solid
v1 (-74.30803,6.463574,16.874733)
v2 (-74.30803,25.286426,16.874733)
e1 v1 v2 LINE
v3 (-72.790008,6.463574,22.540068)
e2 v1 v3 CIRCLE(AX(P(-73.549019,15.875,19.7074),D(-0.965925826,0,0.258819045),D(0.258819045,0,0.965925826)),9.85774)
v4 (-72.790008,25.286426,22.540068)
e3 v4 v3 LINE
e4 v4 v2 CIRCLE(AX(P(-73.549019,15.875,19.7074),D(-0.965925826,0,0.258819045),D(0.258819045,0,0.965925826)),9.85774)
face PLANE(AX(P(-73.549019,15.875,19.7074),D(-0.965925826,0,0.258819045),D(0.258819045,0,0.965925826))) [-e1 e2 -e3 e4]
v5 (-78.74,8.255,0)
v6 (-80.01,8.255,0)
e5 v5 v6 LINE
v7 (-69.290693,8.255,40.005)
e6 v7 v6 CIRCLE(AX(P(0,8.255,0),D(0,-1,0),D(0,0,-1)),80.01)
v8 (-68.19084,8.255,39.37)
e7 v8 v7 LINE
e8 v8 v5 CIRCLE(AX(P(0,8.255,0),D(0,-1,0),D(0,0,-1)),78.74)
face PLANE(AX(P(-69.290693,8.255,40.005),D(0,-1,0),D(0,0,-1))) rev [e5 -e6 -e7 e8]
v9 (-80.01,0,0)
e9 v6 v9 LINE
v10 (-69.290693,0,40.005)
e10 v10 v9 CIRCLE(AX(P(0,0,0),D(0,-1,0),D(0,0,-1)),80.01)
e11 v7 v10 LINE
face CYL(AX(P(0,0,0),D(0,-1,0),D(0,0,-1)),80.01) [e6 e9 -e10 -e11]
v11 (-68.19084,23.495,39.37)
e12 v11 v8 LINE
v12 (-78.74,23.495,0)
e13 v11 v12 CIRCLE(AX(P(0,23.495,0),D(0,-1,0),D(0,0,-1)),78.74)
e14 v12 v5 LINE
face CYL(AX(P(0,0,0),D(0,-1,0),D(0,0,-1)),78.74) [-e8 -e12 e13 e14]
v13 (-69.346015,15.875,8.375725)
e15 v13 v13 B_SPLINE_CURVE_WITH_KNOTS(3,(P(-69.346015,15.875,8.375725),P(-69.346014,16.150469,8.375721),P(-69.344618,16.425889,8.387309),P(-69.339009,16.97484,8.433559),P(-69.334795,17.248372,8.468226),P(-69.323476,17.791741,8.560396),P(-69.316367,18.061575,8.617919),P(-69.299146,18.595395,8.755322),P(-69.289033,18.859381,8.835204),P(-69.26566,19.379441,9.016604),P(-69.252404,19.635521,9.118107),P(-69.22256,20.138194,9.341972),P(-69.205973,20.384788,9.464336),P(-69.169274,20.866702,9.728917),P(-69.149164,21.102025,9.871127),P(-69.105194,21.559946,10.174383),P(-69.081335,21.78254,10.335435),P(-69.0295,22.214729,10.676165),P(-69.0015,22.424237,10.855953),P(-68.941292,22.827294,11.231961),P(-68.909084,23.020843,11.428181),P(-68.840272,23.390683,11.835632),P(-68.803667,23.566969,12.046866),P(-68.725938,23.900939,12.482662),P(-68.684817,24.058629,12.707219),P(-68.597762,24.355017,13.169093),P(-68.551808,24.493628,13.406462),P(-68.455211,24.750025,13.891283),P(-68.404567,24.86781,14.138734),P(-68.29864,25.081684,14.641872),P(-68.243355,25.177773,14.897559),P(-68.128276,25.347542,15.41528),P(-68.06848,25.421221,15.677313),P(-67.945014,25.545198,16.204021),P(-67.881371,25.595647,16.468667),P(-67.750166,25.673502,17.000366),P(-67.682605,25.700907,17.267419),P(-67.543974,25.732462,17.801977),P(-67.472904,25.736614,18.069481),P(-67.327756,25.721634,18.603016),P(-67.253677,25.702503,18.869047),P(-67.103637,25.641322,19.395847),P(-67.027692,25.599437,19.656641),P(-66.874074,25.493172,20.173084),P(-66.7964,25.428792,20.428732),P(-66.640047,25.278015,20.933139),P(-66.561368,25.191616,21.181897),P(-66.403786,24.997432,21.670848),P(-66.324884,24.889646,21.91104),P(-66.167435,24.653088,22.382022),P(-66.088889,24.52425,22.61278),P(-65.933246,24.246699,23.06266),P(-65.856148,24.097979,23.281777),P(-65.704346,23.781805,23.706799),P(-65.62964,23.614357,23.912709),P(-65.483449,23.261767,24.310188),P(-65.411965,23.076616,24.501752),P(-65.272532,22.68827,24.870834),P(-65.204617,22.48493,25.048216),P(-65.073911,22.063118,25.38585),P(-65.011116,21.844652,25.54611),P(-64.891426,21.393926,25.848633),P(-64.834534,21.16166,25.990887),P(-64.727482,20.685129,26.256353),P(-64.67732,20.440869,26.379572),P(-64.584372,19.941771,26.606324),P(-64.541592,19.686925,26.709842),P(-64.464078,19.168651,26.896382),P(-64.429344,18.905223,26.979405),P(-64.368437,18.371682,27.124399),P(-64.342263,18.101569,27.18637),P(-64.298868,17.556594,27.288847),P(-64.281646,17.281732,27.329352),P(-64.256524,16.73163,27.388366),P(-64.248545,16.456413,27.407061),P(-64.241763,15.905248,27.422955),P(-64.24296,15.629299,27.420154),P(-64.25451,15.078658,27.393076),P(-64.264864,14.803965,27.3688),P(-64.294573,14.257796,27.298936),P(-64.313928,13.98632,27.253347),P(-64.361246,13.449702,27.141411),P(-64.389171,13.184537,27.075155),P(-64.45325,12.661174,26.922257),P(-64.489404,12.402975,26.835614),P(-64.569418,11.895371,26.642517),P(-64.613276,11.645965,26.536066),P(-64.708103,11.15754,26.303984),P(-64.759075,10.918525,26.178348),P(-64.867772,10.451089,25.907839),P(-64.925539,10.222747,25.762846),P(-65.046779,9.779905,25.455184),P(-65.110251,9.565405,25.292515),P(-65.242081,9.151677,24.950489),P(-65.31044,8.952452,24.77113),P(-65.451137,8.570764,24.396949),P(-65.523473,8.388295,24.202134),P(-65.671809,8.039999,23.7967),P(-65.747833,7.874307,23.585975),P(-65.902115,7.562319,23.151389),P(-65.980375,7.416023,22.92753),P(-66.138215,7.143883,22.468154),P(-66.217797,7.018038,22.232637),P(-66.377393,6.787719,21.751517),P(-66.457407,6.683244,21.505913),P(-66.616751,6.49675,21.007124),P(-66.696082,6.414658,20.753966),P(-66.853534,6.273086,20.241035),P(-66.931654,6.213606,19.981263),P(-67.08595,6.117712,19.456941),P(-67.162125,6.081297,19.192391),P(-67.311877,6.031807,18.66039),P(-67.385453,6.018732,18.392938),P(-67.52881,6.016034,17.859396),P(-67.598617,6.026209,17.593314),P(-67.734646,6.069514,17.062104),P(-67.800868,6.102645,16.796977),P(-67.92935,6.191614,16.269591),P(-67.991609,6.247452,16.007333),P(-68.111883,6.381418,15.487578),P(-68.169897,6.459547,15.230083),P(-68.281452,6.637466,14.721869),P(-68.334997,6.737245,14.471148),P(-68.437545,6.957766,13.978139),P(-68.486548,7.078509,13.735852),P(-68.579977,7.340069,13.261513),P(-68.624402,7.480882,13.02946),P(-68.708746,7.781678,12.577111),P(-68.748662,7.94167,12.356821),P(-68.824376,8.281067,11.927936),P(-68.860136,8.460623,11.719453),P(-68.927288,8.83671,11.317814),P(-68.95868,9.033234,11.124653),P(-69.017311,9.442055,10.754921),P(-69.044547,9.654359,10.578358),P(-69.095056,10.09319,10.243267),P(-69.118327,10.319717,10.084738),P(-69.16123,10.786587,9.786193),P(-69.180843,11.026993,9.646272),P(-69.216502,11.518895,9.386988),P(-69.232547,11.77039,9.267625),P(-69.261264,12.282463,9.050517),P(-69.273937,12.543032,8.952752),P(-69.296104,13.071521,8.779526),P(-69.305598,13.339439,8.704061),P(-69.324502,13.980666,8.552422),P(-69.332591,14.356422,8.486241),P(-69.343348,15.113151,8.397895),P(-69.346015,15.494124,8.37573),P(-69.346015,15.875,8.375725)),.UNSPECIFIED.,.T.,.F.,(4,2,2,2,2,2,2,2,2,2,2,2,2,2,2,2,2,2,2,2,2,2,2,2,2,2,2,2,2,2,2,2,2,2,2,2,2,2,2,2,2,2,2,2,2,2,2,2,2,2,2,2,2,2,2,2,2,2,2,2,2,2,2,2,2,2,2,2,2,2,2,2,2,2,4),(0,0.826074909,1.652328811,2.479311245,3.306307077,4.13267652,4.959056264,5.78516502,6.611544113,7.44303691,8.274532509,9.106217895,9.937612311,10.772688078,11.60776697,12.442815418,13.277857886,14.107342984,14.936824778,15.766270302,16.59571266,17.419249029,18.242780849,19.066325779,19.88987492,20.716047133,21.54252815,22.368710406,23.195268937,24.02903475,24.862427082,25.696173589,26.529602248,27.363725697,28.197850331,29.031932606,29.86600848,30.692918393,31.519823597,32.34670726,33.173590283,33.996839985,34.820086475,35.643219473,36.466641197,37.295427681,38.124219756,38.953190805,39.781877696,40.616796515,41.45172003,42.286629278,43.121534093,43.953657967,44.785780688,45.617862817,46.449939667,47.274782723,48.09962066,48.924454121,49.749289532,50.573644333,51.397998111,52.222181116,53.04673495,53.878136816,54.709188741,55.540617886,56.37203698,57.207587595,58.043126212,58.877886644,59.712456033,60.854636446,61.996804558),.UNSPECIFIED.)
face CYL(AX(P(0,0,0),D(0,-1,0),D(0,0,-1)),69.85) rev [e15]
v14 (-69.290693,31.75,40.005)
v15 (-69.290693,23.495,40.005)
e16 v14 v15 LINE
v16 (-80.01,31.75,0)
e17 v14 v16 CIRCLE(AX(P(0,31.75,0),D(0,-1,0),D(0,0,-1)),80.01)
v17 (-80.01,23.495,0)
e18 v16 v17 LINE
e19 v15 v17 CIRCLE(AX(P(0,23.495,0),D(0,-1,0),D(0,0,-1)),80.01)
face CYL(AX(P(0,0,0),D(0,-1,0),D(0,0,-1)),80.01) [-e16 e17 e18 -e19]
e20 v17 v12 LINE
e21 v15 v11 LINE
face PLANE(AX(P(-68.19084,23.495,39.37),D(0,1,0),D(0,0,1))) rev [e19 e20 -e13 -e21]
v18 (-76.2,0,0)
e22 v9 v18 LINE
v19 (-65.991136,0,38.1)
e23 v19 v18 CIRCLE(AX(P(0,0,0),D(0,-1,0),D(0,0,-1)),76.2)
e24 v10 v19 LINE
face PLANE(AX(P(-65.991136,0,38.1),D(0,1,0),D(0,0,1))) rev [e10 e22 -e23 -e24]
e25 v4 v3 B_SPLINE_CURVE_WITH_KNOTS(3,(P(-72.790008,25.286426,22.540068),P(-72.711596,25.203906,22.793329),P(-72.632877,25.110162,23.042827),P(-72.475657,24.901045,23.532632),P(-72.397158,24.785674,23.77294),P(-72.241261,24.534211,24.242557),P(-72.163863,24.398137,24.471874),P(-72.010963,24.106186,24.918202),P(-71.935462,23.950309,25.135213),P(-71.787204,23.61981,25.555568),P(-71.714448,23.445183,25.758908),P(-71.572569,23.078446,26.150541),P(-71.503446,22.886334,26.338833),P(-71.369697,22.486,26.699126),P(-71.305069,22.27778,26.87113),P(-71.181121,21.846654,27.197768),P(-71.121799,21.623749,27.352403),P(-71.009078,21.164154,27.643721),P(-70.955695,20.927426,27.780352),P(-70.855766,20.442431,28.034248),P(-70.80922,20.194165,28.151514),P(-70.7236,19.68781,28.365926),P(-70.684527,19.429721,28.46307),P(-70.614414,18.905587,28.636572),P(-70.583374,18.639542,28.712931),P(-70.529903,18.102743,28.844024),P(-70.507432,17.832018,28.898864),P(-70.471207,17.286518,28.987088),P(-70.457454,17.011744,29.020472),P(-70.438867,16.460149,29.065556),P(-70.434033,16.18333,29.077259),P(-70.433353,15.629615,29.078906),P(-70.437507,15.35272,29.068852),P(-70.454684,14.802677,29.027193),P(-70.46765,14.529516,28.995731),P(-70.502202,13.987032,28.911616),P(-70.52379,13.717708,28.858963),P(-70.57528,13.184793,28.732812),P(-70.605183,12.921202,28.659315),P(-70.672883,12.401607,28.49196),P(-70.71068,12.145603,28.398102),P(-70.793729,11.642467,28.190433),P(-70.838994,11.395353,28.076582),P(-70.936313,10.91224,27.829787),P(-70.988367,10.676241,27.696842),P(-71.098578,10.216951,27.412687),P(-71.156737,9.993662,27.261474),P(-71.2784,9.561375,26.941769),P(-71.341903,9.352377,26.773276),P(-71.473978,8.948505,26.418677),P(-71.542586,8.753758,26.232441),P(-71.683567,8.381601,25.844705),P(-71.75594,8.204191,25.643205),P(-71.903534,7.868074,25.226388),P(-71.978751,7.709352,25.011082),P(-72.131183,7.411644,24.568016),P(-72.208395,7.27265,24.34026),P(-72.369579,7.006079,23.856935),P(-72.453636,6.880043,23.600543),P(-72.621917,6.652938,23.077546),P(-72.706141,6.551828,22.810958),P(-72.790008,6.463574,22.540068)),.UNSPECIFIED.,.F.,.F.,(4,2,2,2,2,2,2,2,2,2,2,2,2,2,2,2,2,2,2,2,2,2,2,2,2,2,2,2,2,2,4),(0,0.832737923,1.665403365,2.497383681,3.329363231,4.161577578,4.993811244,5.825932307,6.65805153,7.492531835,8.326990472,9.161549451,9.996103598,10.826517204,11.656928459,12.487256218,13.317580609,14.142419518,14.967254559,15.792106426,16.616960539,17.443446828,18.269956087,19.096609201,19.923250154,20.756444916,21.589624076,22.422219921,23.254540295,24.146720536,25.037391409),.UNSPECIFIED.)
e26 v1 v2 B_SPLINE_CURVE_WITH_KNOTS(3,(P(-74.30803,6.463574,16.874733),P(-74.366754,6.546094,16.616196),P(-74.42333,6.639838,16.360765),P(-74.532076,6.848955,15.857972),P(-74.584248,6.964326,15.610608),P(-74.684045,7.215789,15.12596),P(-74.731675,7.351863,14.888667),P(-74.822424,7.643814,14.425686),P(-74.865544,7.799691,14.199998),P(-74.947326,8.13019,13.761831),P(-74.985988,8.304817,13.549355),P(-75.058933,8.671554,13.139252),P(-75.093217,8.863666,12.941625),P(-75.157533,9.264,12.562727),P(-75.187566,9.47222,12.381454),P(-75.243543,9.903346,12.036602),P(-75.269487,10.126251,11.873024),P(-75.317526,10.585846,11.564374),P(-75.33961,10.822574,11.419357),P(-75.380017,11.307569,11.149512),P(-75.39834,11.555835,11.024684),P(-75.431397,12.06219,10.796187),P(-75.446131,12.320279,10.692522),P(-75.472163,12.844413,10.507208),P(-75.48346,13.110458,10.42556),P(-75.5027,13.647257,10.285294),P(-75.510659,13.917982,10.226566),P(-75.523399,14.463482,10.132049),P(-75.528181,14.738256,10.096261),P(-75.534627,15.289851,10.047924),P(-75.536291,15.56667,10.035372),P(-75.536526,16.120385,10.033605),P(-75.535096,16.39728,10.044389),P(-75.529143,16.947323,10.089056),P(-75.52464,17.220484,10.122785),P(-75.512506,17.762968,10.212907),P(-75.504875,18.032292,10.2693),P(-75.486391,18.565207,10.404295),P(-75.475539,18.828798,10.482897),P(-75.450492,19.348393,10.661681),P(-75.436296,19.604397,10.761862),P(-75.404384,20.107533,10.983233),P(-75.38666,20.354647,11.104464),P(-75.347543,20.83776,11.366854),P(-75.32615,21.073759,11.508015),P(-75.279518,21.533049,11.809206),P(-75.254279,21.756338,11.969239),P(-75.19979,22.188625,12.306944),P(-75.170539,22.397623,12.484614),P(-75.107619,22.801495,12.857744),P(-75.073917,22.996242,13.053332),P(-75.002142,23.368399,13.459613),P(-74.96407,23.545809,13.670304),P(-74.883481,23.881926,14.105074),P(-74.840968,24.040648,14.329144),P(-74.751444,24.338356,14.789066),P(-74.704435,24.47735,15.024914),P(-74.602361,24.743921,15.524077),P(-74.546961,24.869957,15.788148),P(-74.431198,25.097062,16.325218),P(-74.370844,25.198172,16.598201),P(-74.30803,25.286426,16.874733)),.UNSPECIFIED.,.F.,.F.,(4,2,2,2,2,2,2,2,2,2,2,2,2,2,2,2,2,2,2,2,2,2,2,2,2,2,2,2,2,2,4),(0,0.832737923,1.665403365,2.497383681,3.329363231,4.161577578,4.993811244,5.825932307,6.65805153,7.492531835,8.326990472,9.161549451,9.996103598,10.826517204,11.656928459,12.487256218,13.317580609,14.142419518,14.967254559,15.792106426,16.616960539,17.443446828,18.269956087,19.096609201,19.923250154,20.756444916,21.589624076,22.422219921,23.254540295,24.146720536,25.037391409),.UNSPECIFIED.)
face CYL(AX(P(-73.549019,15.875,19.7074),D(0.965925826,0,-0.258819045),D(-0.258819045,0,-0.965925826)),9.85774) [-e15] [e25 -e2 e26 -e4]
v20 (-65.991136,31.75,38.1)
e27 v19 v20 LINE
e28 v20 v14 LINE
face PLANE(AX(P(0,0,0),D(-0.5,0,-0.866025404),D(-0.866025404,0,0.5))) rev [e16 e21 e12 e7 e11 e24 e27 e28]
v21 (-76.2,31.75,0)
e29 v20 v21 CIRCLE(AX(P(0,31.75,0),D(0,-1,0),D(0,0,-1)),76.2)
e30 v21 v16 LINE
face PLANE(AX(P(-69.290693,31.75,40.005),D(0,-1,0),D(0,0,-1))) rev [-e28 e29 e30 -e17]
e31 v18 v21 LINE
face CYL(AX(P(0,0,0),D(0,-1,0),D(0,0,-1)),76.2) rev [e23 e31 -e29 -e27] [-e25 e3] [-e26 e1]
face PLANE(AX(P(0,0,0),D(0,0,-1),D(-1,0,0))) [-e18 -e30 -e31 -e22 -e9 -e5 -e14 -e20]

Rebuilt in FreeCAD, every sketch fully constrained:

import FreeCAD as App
import Part
import Sketcher
from FreeCAD import Vector
Q = App.Units.Quantity

doc = App.newDocument("Part")
body = doc.addObject("PartDesign::Body", "Body")

# Sketch on XY plane
sketch1 = doc.addObject("Sketcher::SketchObject", "Sketch")
body.addObject(sketch1)
sketch1.AttachmentSupport = (doc.XY_Plane, [""])
sketch1.MapMode = "FlatFace"
sketch1.addGeometry(Part.LineSegment(Vector(-80, 8.3, 0), Vector(-80, 0, 0)), False)
sketch1.addGeometry(Part.LineSegment(Vector(-80, 0, 0), Vector(-76.2, 0, 0)), False)
sketch1.addGeometry(Part.LineSegment(Vector(-76.2, 0, 0), Vector(-76.2, 31.8, 0)), False)
sketch1.addGeometry(Part.LineSegment(Vector(-76.2, 31.8, 0), Vector(-80, 31.8, 0)), False)
sketch1.addGeometry(Part.LineSegment(Vector(-80, 31.8, 0), Vector(-80, 23.5, 0)), False)
sketch1.addGeometry(Part.LineSegment(Vector(-80, 23.5, 0), Vector(-78.7, 23.5, 0)), False)
sketch1.addGeometry(Part.LineSegment(Vector(-78.7, 23.5, 0), Vector(-78.7, 8.3, 0)), False)
sketch1.addGeometry(Part.LineSegment(Vector(-78.7, 8.3, 0), Vector(-80, 8.3, 0)), False)
sketch1.addConstraint(Sketcher.Constraint("Coincident", 0, 2, 1, 1))
sketch1.addConstraint(Sketcher.Constraint("Coincident", 1, 2, 2, 1))
sketch1.addConstraint(Sketcher.Constraint("Coincident", 2, 2, 3, 1))
sketch1.addConstraint(Sketcher.Constraint("Coincident", 3, 2, 4, 1))
sketch1.addConstraint(Sketcher.Constraint("Coincident", 4, 2, 5, 1))
sketch1.addConstraint(Sketcher.Constraint("Coincident", 5, 2, 6, 1))
sketch1.addConstraint(Sketcher.Constraint("Coincident", 6, 2, 7, 1))
sketch1.addConstraint(Sketcher.Constraint("Coincident", 7, 2, 0, 1))
sketch1.addConstraint(Sketcher.Constraint("Vertical", 0))
sketch1.addConstraint(Sketcher.Constraint("Horizontal", 1))
sketch1.addConstraint(Sketcher.Constraint("Vertical", 2))
sketch1.addConstraint(Sketcher.Constraint("Horizontal", 3))
sketch1.addConstraint(Sketcher.Constraint("Vertical", 4))
sketch1.addConstraint(Sketcher.Constraint("Horizontal", 5))
sketch1.addConstraint(Sketcher.Constraint("Vertical", 6))
sketch1.addConstraint(Sketcher.Constraint("Horizontal", 7))
sketch1.addConstraint(Sketcher.Constraint("PointOnObject", 0, 2, -1))
sketch1.addConstraint(Sketcher.Constraint("Vertical", 0, 2, 3, 2))
sketch1.addConstraint(Sketcher.Constraint("Equal", 0, 4))
sketch1.addConstraint(Sketcher.Constraint("DistanceY", 6, 2, 6, 1, Q("0.6 in")))
sketch1.addConstraint(Sketcher.Constraint("DistanceX", 1, 2, -1, 1, Q("3 in")))
sketch1.addConstraint(Sketcher.Constraint("DistanceX", 1, 1, 1, 2, Q("0.15 in")))
sketch1.addConstraint(Sketcher.Constraint("DistanceX", 5, 1, 5, 2, Q("0.05 in")))
sketch1.addConstraint(Sketcher.Constraint("DistanceY", 2, 1, 2, 2, Q("1.25 in")))
revolution = doc.addObject("PartDesign::Revolution", "Revolution")
body.addObject(revolution)
revolution.Profile = sketch1
revolution.ReferenceAxis = (sketch1, ["V_Axis"])
revolution.Angle = 30

# Sketch on an angled plane
sketch2 = doc.addObject("Sketcher::SketchObject", "Sketch001")
body.addObject(sketch2)
sketch2.Placement = App.Placement(Vector(-71.095568, 0, 19.05), App.Rotation(Vector(0.258819045, 0, 0.965925826), Vector(0, 0.999999999, 0), Vector(-0.965925826, 0, 0.258819045), "ZXY"))
sketch2.addGeometry(Part.Circle(Vector(0, 16, 0), Vector(0, 0, 1), 10), False)
sketch2.addConstraint(Sketcher.Constraint("PointOnObject", 0, 3, -2))
sketch2.addConstraint(Sketcher.Constraint("Diameter", 0, Q("0.7762 in")))
sketch2.addConstraint(Sketcher.Constraint("DistanceY", -1, 1, 0, 3, Q("0.625 in")))
pad1 = doc.addObject("PartDesign::Pad", "Pad")
body.addObject(pad1)
pad1.Profile = sketch2
pad1.Length = Q("0.1 in")

# Sketch on an angled plane
sketch3 = doc.addObject("Sketcher::SketchObject", "Sketch002")
body.addObject(sketch3)
sketch3.Placement = App.Placement(Vector(-71.095568, 0, 19.05), App.Rotation(Vector(-0.258819045, 0, -0.965925826), Vector(0, 0.999999999, 0), Vector(0.965925826, 0, -0.258819045), "ZXY"))
sketch3.addGeometry(Part.Circle(Vector(0, 16, 0), Vector(0, 0, 1), 10), False)
sketch3.addConstraint(Sketcher.Constraint("PointOnObject", 0, 3, -2))
sketch3.addConstraint(Sketcher.Constraint("Diameter", 0, Q("0.7762 in")))
sketch3.addConstraint(Sketcher.Constraint("DistanceY", -1, 1, 0, 3, Q("0.625 in")))
pad2 = doc.addObject("PartDesign::Pad", "Pad001")
body.addObject(pad2)
pad2.Profile = sketch3
pad2.Length = Q("0.5 in")

# Sketch on XY plane
sketch4 = doc.addObject("Sketcher::SketchObject", "Sketch003")
body.addObject(sketch4)
sketch4.AttachmentSupport = (doc.XY_Plane, [""])
sketch4.MapMode = "FlatFace"
sketch4.addGeometry(Part.LineSegment(Vector(-70, 32, 0), Vector(-70, 0, 0)), False)
sketch4.addGeometry(Part.LineSegment(Vector(-70, 0, 0), Vector(0, 0, 0)), False)
sketch4.addGeometry(Part.LineSegment(Vector(0, 0, 0), Vector(0, 32, 0)), False)
sketch4.addGeometry(Part.LineSegment(Vector(0, 32, 0), Vector(-70, 32, 0)), False)
sketch4.addConstraint(Sketcher.Constraint("Coincident", 0, 2, 1, 1))
sketch4.addConstraint(Sketcher.Constraint("Coincident", 1, 2, 2, 1))
sketch4.addConstraint(Sketcher.Constraint("Coincident", 2, 2, 3, 1))
sketch4.addConstraint(Sketcher.Constraint("Coincident", 3, 2, 0, 1))
sketch4.addConstraint(Sketcher.Constraint("Vertical", 0))
sketch4.addConstraint(Sketcher.Constraint("Horizontal", 1))
sketch4.addConstraint(Sketcher.Constraint("Vertical", 2))
sketch4.addConstraint(Sketcher.Constraint("Horizontal", 3))
sketch4.addConstraint(Sketcher.Constraint("Coincident", 1, 2, -1, 1))
sketch4.addConstraint(Sketcher.Constraint("DistanceX", 1, 1, 1, 2, Q("2.75 in")))
sketch4.addConstraint(Sketcher.Constraint("DistanceY", 0, 2, 0, 1, Q("1.25 in")))
groove = doc.addObject("PartDesign::Groove", "Groove")
body.addObject(groove)
groove.Profile = sketch4
groove.ReferenceAxis = (sketch4, ["V_Axis"])
groove.Angle = 30

doc.recompute()
